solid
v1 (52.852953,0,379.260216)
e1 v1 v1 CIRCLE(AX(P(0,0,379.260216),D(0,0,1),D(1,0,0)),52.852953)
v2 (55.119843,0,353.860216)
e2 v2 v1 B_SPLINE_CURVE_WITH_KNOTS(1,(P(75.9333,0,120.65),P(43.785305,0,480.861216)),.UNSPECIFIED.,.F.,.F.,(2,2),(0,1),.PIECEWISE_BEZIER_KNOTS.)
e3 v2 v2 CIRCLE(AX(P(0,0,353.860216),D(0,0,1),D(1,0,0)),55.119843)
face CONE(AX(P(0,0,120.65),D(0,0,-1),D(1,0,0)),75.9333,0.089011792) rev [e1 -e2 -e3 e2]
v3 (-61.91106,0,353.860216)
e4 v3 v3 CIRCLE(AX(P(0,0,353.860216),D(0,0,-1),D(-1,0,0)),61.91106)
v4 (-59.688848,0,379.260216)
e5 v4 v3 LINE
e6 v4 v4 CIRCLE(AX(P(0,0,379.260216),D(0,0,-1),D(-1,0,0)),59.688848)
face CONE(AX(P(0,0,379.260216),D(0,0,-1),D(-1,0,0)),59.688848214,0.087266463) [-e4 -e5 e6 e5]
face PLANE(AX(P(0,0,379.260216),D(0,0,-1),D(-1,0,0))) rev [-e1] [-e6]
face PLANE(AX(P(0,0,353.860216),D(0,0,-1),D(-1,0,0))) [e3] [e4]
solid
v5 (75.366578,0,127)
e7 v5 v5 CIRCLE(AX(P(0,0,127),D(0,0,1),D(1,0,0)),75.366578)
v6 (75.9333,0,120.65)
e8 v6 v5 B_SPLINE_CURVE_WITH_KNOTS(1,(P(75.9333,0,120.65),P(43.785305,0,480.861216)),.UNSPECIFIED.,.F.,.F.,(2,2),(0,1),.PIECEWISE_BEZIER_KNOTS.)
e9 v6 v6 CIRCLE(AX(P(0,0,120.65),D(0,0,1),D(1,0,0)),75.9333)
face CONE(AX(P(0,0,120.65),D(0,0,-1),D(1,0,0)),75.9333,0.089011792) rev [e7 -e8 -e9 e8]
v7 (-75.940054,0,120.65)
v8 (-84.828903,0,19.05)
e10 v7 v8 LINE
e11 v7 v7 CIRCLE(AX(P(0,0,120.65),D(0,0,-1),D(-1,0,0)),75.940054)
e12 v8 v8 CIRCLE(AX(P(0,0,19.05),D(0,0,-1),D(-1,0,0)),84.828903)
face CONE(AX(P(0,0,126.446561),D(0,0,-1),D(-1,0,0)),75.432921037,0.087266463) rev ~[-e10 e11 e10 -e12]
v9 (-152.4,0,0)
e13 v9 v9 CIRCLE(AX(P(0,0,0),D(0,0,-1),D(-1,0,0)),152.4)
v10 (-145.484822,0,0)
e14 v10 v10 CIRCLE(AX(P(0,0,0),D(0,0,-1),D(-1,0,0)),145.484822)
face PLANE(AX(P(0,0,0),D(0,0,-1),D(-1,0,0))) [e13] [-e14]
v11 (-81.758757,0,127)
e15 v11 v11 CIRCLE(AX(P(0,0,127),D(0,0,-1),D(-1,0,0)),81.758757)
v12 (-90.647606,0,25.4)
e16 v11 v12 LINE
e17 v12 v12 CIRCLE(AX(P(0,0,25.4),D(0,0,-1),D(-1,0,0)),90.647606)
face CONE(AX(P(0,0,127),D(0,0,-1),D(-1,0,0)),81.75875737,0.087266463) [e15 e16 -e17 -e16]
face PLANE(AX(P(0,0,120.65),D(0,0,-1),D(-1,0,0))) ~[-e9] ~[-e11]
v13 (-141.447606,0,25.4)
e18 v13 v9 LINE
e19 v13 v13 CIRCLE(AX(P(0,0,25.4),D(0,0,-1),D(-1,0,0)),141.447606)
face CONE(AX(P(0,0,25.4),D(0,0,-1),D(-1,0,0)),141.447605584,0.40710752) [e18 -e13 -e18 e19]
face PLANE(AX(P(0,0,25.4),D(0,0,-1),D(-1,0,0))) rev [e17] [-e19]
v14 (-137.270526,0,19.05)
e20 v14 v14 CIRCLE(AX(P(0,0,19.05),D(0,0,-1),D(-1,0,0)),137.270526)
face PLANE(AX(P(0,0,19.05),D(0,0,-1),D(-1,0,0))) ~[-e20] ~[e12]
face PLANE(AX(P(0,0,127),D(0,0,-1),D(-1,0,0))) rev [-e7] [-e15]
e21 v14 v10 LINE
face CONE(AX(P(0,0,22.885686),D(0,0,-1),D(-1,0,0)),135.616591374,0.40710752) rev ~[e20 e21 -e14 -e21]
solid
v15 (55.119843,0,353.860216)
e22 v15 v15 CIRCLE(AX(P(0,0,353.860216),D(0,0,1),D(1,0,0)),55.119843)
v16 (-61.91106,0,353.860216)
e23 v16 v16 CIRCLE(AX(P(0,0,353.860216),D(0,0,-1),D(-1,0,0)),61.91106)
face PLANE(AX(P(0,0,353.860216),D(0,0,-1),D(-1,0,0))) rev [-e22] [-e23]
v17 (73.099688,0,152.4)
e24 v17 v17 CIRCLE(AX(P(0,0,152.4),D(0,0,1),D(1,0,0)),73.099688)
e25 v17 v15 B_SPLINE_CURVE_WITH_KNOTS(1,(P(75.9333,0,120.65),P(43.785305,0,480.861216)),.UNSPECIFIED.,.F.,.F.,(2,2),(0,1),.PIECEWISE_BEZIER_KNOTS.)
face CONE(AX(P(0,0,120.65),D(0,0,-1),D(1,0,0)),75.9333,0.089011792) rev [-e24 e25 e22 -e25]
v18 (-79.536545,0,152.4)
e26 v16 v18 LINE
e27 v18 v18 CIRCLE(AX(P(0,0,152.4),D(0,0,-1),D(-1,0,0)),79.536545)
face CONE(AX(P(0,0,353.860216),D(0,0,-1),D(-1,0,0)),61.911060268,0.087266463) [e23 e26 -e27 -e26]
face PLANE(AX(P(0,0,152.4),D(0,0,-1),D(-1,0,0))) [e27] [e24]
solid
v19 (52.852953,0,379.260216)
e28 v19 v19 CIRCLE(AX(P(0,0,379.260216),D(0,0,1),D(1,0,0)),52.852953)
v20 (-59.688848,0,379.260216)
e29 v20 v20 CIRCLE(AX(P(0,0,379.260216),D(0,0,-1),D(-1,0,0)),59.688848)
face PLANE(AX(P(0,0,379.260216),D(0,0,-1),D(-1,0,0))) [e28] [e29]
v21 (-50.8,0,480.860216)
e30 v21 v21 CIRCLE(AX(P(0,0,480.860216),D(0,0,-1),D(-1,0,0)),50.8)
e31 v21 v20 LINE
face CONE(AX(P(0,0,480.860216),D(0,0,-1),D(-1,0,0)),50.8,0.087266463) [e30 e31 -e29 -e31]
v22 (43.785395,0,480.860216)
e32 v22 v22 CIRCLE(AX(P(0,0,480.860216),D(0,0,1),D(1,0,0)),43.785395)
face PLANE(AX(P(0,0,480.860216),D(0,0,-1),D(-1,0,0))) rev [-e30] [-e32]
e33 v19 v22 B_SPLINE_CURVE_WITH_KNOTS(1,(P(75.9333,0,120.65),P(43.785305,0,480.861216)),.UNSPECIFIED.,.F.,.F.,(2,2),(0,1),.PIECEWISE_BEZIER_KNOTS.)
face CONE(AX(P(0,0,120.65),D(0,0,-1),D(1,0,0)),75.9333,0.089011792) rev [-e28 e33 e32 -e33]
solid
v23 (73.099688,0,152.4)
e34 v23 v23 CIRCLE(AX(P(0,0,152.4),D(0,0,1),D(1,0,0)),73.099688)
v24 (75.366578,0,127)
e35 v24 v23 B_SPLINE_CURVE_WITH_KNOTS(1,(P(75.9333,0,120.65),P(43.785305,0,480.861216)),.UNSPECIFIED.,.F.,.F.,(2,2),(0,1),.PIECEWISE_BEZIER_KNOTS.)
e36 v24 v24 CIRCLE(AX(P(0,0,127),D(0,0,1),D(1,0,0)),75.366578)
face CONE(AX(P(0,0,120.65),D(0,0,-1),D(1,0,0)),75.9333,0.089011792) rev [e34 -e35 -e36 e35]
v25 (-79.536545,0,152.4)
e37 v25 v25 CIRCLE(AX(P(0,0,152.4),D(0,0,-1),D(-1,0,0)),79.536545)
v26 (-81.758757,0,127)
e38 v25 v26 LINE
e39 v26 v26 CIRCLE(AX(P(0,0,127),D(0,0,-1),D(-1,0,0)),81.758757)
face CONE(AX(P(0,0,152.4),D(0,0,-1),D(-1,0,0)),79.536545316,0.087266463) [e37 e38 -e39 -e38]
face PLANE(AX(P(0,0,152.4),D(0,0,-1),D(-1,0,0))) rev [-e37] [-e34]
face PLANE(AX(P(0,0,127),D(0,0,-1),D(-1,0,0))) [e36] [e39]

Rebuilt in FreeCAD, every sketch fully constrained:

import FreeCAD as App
import Part
import Sketcher
Q = App.Units.Quantity


def faces_at(feature, points):
    """Names of the faces that lie closest to the given points."""
    faces = feature.Shape.Faces
    near = lambda p: min(range(len(faces)), key=lambda i: faces[i].distToShape(Part.Vertex(*p))[0])
    return sorted({f"Face{near(p) + 1}" for p in points})

doc = App.newDocument("Part")
body = doc.addObject("PartDesign::Body", "Body")

sketch1 = doc.addObject("Sketcher::SketchObject", "Sketch")
body.addObject(sketch1)
sketch1.AttachmentSupport = (doc.XZ_Plane, [""])
sketch1.MapMode = "FlatFace"
sketch1.addGeometry(Part.LineSegment(App.Vector(-141.447606, 25.4, 0), App.Vector(-152.4, 0, 0)), False)
sketch1.addGeometry(Part.LineSegment(App.Vector(-152.4, 0, 0), App.Vector(0, 0, 0)), False)
sketch1.addGeometry(Part.LineSegment(App.Vector(0, 0, 0), App.Vector(0, 127, 0)), False)
sketch1.addGeometry(Part.LineSegment(App.Vector(0, 127, 0), App.Vector(-81.758757, 127, 0)), False)
sketch1.addGeometry(Part.LineSegment(App.Vector(-81.758757, 127, 0), App.Vector(-90.647606, 25.4, 0)), False)
sketch1.addGeometry(Part.LineSegment(App.Vector(-90.647606, 25.4, 0), App.Vector(-141.447606, 25.4, 0)), False)
sketch1.addConstraint(Sketcher.Constraint("Coincident", 0, 2, 1, 1))
sketch1.addConstraint(Sketcher.Constraint("Coincident", 1, 2, 2, 1))
sketch1.addConstraint(Sketcher.Constraint("Coincident", 2, 2, 3, 1))
sketch1.addConstraint(Sketcher.Constraint("Coincident", 3, 2, 4, 1))
sketch1.addConstraint(Sketcher.Constraint("Coincident", 4, 2, 5, 1))
sketch1.addConstraint(Sketcher.Constraint("Coincident", 5, 2, 0, 1))
sketch1.addConstraint(Sketcher.Constraint("Horizontal", 1))
sketch1.addConstraint(Sketcher.Constraint("Vertical", 2))
sketch1.addConstraint(Sketcher.Constraint("Horizontal", 3))
sketch1.addConstraint(Sketcher.Constraint("Horizontal", 5))
sketch1.addConstraint(Sketcher.Constraint("Coincident", 1, 2, -1, 1))
sketch1.addConstraint(Sketcher.Constraint("DistanceX", 1, 1, 1, 2, Q("6 in")))
sketch1.addConstraint(Sketcher.Constraint("DistanceX", 5, 2, 5, 1, Q("2 in")))
sketch1.addConstraint(Sketcher.Constraint("DistanceY", 2, 1, 2, 2, Q("5 in")))
sketch1.addConstraint(Sketcher.Constraint("DistanceY", -1, 1, 4, 2, Q("1 in")))
sketch1.addConstraint(Sketcher.Constraint("Angle", 4, Q("-95 deg")))
sketch1.addConstraint(Sketcher.Constraint("Distance", 0, 27.660711))
revolution = doc.addObject("PartDesign::Revolution", "Revolution")
body.addObject(revolution)
revolution.Profile = sketch1
revolution.ReferenceAxis = (sketch1, ["V_Axis"])
revolution.Angle = 360
doc.recompute()

thickness = doc.addObject("PartDesign::Thickness", "Thickness")
body.addObject(thickness)
thickness.Base = (revolution, faces_at(revolution, [(0, 0, 0)]))
thickness.Value = Q("0.25 in")
thickness.Reversed = True
thickness.Join = "Intersection"
body2 = doc.addObject("PartDesign::Body", "Body001")

sketch2 = doc.addObject("Sketcher::SketchObject", "Sketch001")
body2.addObject(sketch2)
sketch2.AttachmentSupport = (doc.getObject("XZ_Plane001"), [""])
sketch2.MapMode = "FlatFace"
sketch2.addGeometry(Part.LineSegment(App.Vector(-81.758757, 127, 0), App.Vector(0, 127, 0)), False)
sketch2.addGeometry(Part.LineSegment(App.Vector(0, 127, 0), App.Vector(0, 152.4, 0)), False)
sketch2.addGeometry(Part.LineSegment(App.Vector(0, 152.4, 0), App.Vector(-79.536545, 152.4, 0)), False)
sketch2.addGeometry(Part.LineSegment(App.Vector(-79.536545, 152.4, 0), App.Vector(-81.758757, 127, 0)), False)
sketch2.addConstraint(Sketcher.Constraint("Coincident", 0, 2, 1, 1))
sketch2.addConstraint(Sketcher.Constraint("Coincident", 1, 2, 2, 1))
sketch2.addConstraint(Sketcher.Constraint("Coincident", 2, 2, 3, 1))
sketch2.addConstraint(Sketcher.Constraint("Coincident", 3, 2, 0, 1))
sketch2.addConstraint(Sketcher.Constraint("Horizontal", 0))
sketch2.addConstraint(Sketcher.Constraint("Vertical", 1))
sketch2.addConstraint(Sketcher.Constraint("Horizontal", 2))
sketch2.addConstraint(Sketcher.Constraint("PointOnObject", 0, 2, -2))
sketch2.addConstraint(Sketcher.Constraint("DistanceY", 1, 1, 1, 2, Q("1 in")))
sketch2.addConstraint(Sketcher.Constraint("DistanceY", -1, 1, 0, 2, Q("5 in")))
sketch2.addConstraint(Sketcher.Constraint("Angle", 3, Q("-95 deg")))
sketch2.addConstraint(Sketcher.Constraint("DistanceX", 0, 1, 0, 2, 81.758757))
revolution2 = doc.addObject("PartDesign::Revolution", "Revolution001")
body2.addObject(revolution2)
revolution2.Profile = sketch2
revolution2.ReferenceAxis = (sketch2, ["V_Axis"])
revolution2.Angle = 360
body3 = doc.addObject("PartDesign::Body", "Body002")

sketch3 = doc.addObject("Sketcher::SketchObject", "Sketch002")
body3.addObject(sketch3)
sketch3.AttachmentSupport = (doc.getObject("XZ_Plane002"), [""])
sketch3.MapMode = "FlatFace"
sketch3.addGeometry(Part.LineSegment(App.Vector(-79.536545, 152.4, 0), App.Vector(0, 152.4, 0)), False)
sketch3.addGeometry(Part.LineSegment(App.Vector(0, 152.4, 0), App.Vector(0, 353.860216, 0)), False)
sketch3.addGeometry(Part.LineSegment(App.Vector(0, 353.860216, 0), App.Vector(-61.91106, 353.860216, 0)), False)
sketch3.addGeometry(Part.LineSegment(App.Vector(-61.91106, 353.860216, 0), App.Vector(-79.536545, 152.4, 0)), False)
sketch3.addConstraint(Sketcher.Constraint("Coincident", 0, 2, 1, 1))
sketch3.addConstraint(Sketcher.Constraint("Coincident", 1, 2, 2, 1))
sketch3.addConstraint(Sketcher.Constraint("Coincident", 2, 2, 3, 1))
sketch3.addConstraint(Sketcher.Constraint("Coincident", 3, 2, 0, 1))
sketch3.addConstraint(Sketcher.Constraint("Horizontal", 0))
sketch3.addConstraint(Sketcher.Constraint("Vertical", 1))
sketch3.addConstraint(Sketcher.Constraint("Horizontal", 2))
sketch3.addConstraint(Sketcher.Constraint("PointOnObject", 0, 2, -2))
sketch3.addConstraint(Sketcher.Constraint("DistanceY", -1, 1, 0, 2, Q("6 in")))
sketch3.addConstraint(Sketcher.Constraint("Angle", 3, Q("-95 deg")))
sketch3.addConstraint(Sketcher.Constraint("DistanceX", 2, 2, 2, 1, 61.91106))
sketch3.addConstraint(Sketcher.Constraint("Distance", 3, 202.229761))
revolution3 = doc.addObject("PartDesign::Revolution", "Revolution002")
body3.addObject(revolution3)
revolution3.Profile = sketch3
revolution3.ReferenceAxis = (sketch3, ["V_Axis"])
revolution3.Angle = 360
body4 = doc.addObject("PartDesign::Body", "Body003")

sketch4 = doc.addObject("Sketcher::SketchObject", "Sketch003")
body4.addObject(sketch4)
sketch4.AttachmentSupport = (doc.getObject("XZ_Plane003"), [""])
sketch4.MapMode = "FlatFace"
sketch4.addGeometry(Part.LineSegment(App.Vector(-61.91106, 353.860216, 0), App.Vector(0, 353.860216, 0)), False)
sketch4.addGeometry(Part.LineSegment(App.Vector(0, 353.860216, 0), App.Vector(0, 379.260216, 0)), False)
sketch4.addGeometry(Part.LineSegment(App.Vector(0, 379.260216, 0), App.Vector(-59.688848, 379.260216, 0)), False)
sketch4.addGeometry(Part.LineSegment(App.Vector(-59.688848, 379.260216, 0), App.Vector(-61.91106, 353.860216, 0)), False)
sketch4.addConstraint(Sketcher.Constraint("Coincident", 0, 2, 1, 1))
sketch4.addConstraint(Sketcher.Constraint("Coincident", 1, 2, 2, 1))
sketch4.addConstraint(Sketcher.Constraint("Coincident", 2, 2, 3, 1))
sketch4.addConstraint(Sketcher.Constraint("Coincident", 3, 2, 0, 1))
sketch4.addConstraint(Sketcher.Constraint("Horizontal", 0))
sketch4.addConstraint(Sketcher.Constraint("Vertical", 1))
sketch4.addConstraint(Sketcher.Constraint("Horizontal", 2))
sketch4.addConstraint(Sketcher.Constraint("PointOnObject", 0, 2, -2))
sketch4.addConstraint(Sketcher.Constraint("DistanceY", 1, 1, 1, 2, Q("1 in")))
sketch4.addConstraint(Sketcher.Constraint("Angle", 3, Q("-95 deg")))
sketch4.addConstraint(Sketcher.Constraint("DistanceX", 0, 1, 0, 2, 61.91106))
sketch4.addConstraint(Sketcher.Constraint("DistanceY", -1, 1, 0, 2, 353.860216))
revolution4 = doc.addObject("PartDesign::Revolution", "Revolution003")
body4.addObject(revolution4)
revolution4.Profile = sketch4
revolution4.ReferenceAxis = (sketch4, ["V_Axis"])
revolution4.Angle = 360
body5 = doc.addObject("PartDesign::Body", "Body004")

sketch5 = doc.addObject("Sketcher::SketchObject", "Sketch004")
body5.addObject(sketch5)
sketch5.AttachmentSupport = (doc.getObject("XZ_Plane004"), [""])
sketch5.MapMode = "FlatFace"
sketch5.addGeometry(Part.LineSegment(App.Vector(-59.688848, 379.260216, 0), App.Vector(0, 379.260216, 0)), False)
sketch5.addGeometry(Part.LineSegment(App.Vector(0, 379.260216, 0), App.Vector(0, 480.860216, 0)), False)
sketch5.addGeometry(Part.LineSegment(App.Vector(0, 480.860216, 0), App.Vector(-50.8, 480.860216, 0)), False)
sketch5.addGeometry(Part.LineSegment(App.Vector(-50.8, 480.860216, 0), App.Vector(-59.688848, 379.260216, 0)), False)
sketch5.addConstraint(Sketcher.Constraint("Coincident", 0, 2, 1, 1))
sketch5.addConstraint(Sketcher.Constraint("Coincident", 1, 2, 2, 1))
sketch5.addConstraint(Sketcher.Constraint("Coincident", 2, 2, 3, 1))
sketch5.addConstraint(Sketcher.Constraint("Coincident", 3, 2, 0, 1))
sketch5.addConstraint(Sketcher.Constraint("Horizontal", 0))
sketch5.addConstraint(Sketcher.Constraint("Vertical", 1))
sketch5.addConstraint(Sketcher.Constraint("Horizontal", 2))
sketch5.addConstraint(Sketcher.Constraint("PointOnObject", 0, 2, -2))
sketch5.addConstraint(Sketcher.Constraint("DistanceX", 2, 2, 2, 1, Q("2 in")))
sketch5.addConstraint(Sketcher.Constraint("DistanceY", 1, 1, 1, 2, Q("4 in")))
sketch5.addConstraint(Sketcher.Constraint("Angle", 3, Q("-95 deg")))
sketch5.addConstraint(Sketcher.Constraint("DistanceY", -1, 1, 0, 2, 379.260216))
revolution5 = doc.addObject("PartDesign::Revolution", "Revolution004")
body5.addObject(revolution5)
revolution5.Profile = sketch5
revolution5.ReferenceAxis = (sketch5, ["V_Axis"])
revolution5.Angle = 360
body6 = doc.addObject("PartDesign::Body", "Body005")

sketch6 = doc.addObject("Sketcher::SketchObject", "Sketch005")
body6.addObject(sketch6)
sketch6.AttachmentSupport = (doc.getObject("XY_Plane005"), [""])
sketch6.MapMode = "FlatFace"
sketch6.AttachmentOffset = App.Placement(App.Vector(0, 0, 4.75 * 25.4), App.Rotation())
sketch6.addGeometry(Part.Circle(App.Vector(0, 0, 0), App.Vector(0, 0, 1), 75.9333), False)
sketch6.addConstraint(Sketcher.Constraint("Coincident", 0, 3, -1, 1))
sketch6.addConstraint(Sketcher.Constraint("Diameter", 0, Q("5.979 in")))
pad1 = doc.addObject("PartDesign::Pad", "Pad")
body6.addObject(pad1)
pad1.Profile = sketch6
pad1.Length = 360.211216
pad1.TaperAngle = -5.1
doc.recompute()

body7 = doc.addObject("PartDesign::Body", "Body006")
body7.BaseFeature = body6
boolean = doc.addObject("PartDesign::Boolean", "Boolean")
body.addObject(boolean)
boolean.Type = "Cut"
boolean.addObjects([body7])
doc.recompute()

body8 = doc.addObject("PartDesign::Body", "Body007")
body8.BaseFeature = body6
boolean2 = doc.addObject("PartDesign::Boolean", "Boolean001")
body2.addObject(boolean2)
boolean2.Type = "Cut"
boolean2.addObjects([body8])
doc.recompute()

body9 = doc.addObject("PartDesign::Body", "Body008")
body9.BaseFeature = body6
boolean3 = doc.addObject("PartDesign::Boolean", "Boolean002")
body3.addObject(boolean3)
boolean3.Type = "Cut"
boolean3.addObjects([body9])
doc.recompute()

body10 = doc.addObject("PartDesign::Body", "Body009")
body10.BaseFeature = body6
boolean4 = doc.addObject("PartDesign::Boolean", "Boolean003")
body4.addObject(boolean4)
boolean4.Type = "Cut"
boolean4.addObjects([body10])
doc.recompute()

boolean5 = doc.addObject("PartDesign::Boolean", "Boolean004")
body5.addObject(boolean5)
boolean5.Type = "Cut"
boolean5.addObjects([body6])

doc.recompute()
